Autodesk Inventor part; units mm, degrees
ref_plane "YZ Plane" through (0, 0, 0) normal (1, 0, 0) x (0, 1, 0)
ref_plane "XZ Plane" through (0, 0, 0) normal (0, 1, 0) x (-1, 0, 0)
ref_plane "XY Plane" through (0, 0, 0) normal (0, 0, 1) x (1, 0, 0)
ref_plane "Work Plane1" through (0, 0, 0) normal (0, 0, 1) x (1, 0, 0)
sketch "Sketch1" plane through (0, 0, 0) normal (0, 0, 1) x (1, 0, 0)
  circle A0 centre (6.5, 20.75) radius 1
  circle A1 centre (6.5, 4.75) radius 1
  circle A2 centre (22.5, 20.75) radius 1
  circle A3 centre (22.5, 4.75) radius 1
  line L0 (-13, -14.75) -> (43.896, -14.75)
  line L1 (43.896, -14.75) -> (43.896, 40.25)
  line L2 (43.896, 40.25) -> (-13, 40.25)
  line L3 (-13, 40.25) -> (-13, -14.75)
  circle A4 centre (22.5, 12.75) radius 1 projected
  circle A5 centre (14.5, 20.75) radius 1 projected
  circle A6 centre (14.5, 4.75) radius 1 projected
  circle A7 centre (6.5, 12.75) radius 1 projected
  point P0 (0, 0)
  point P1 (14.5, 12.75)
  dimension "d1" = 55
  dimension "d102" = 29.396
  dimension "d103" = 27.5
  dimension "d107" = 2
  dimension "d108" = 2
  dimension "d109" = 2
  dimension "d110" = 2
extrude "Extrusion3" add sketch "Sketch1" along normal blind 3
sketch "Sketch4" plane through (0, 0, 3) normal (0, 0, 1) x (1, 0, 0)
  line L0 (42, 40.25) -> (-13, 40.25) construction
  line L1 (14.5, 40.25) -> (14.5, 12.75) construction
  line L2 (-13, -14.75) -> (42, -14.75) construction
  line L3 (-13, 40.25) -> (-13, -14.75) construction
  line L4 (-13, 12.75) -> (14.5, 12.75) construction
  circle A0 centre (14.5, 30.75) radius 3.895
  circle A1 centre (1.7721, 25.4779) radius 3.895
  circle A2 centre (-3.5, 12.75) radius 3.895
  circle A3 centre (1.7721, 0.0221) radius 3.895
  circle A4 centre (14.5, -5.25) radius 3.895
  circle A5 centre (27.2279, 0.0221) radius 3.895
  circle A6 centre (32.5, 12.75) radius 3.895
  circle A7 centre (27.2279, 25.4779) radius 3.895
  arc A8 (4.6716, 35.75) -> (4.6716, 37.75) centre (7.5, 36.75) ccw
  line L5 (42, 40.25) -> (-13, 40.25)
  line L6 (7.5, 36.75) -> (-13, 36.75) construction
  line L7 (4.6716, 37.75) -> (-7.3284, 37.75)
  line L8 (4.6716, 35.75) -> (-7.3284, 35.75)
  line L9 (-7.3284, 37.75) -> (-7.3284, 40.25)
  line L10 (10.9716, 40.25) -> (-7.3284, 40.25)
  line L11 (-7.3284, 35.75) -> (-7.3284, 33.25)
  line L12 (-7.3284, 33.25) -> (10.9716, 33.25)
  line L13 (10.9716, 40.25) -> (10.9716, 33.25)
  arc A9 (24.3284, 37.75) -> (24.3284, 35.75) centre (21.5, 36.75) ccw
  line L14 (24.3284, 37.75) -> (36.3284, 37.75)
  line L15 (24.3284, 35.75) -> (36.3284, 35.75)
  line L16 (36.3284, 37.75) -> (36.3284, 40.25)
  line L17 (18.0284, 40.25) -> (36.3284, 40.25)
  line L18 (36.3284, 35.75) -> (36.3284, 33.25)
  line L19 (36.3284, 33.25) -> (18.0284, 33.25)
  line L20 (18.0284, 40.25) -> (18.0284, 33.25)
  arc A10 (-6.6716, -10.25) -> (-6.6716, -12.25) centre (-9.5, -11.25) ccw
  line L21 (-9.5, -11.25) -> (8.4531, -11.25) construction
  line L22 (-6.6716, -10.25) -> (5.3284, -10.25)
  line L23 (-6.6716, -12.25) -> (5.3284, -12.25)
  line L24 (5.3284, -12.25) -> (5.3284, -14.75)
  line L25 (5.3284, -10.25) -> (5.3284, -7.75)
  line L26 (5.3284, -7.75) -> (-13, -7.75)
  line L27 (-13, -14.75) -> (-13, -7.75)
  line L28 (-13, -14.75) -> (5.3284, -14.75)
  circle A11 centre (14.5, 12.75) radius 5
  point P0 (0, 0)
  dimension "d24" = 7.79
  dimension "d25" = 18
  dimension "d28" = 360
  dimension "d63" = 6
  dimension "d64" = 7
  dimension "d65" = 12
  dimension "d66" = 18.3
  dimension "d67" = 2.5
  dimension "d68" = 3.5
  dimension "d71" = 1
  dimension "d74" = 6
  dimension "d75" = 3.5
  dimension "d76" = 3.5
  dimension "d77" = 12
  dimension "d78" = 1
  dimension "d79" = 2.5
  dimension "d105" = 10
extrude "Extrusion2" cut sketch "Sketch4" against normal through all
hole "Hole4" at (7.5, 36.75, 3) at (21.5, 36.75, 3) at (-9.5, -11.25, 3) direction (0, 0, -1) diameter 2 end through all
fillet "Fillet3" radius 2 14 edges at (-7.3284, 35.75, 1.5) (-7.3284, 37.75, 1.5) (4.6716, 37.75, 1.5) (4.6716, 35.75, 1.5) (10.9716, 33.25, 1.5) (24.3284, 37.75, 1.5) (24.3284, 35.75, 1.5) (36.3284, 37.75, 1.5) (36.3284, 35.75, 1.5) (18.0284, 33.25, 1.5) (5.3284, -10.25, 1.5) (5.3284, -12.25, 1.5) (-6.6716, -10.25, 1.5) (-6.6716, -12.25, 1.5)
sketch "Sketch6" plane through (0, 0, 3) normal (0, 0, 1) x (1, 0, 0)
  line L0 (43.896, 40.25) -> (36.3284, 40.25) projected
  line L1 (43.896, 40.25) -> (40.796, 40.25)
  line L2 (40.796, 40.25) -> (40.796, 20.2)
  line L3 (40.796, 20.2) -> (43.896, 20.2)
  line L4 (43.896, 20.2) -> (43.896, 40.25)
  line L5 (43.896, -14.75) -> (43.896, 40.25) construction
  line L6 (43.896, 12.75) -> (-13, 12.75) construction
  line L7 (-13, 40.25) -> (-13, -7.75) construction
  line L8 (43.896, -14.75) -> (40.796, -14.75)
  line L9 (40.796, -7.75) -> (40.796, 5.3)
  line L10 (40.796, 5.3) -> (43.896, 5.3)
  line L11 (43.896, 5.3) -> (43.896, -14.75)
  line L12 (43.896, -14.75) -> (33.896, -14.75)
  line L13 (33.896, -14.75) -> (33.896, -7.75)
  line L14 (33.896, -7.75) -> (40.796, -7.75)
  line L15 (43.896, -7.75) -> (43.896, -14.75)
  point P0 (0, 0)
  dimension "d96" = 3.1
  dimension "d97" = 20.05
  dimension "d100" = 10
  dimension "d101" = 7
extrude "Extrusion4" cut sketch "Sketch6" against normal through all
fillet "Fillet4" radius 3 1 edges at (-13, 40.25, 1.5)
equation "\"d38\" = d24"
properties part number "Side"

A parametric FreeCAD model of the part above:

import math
import FreeCAD as App
import Part
import Sketcher


def edges_at(feature, points):
    """Names of the edges that pass closest to the given points."""
    edges = feature.Shape.Edges
    near = lambda p: min(range(len(edges)), key=lambda i: edges[i].distToShape(Part.Vertex(*p))[0])
    return sorted({f"Edge{near(p) + 1}" for p in points})


def add_polygon(sketch, points):
    """Adds a closed chain of lines whose ends are joined by coincident constraints."""
    first, n = sketch.GeometryCount, len(points)
    for a, b in zip(points, points[1:] + points[:1]):
        sketch.addGeometry(Part.LineSegment(App.Vector(*a, 0), App.Vector(*b, 0)), False)
    for i in range(n):
        sketch.addConstraint(Sketcher.Constraint("Coincident", first + i, 2, first + (i + 1) % n, 1))

doc = App.newDocument("Part")
body = doc.addObject("PartDesign::Body", "Body")

sketch1 = doc.addObject("Sketcher::SketchObject", "Sketch")
body.addObject(sketch1)
sketch1.AttachmentSupport = (doc.XY_Plane, [""])
sketch1.MapMode = "FlatFace"
add_polygon(sketch1, [(-13, 40.25), (-13, -14.75), (43.896, -14.75), (43.896, 40.25)])
sketch1.addGeometry(Part.Circle(App.Vector(6.5, 4.75, 0), App.Vector(0, 0, 1), 1), False)
sketch1.addGeometry(Part.Circle(App.Vector(14.5, 4.75, 0), App.Vector(0, 0, 1), 1), False)
sketch1.addGeometry(Part.Circle(App.Vector(22.5, 4.75, 0), App.Vector(0, 0, 1), 1), False)
sketch1.addGeometry(Part.Circle(App.Vector(6.5, 12.75, 0), App.Vector(0, 0, 1), 1), False)
sketch1.addGeometry(Part.Circle(App.Vector(6.5, 20.75, 0), App.Vector(0, 0, 1), 1), False)
sketch1.addGeometry(Part.Circle(App.Vector(14.5, 20.75, 0), App.Vector(0, 0, 1), 1), False)
sketch1.addGeometry(Part.Circle(App.Vector(22.5, 12.75, 0), App.Vector(0, 0, 1), 1), False)
sketch1.addGeometry(Part.Circle(App.Vector(22.5, 20.75, 0), App.Vector(0, 0, 1), 1), False)
sketch1.addConstraint(Sketcher.Constraint("Vertical", 0))
sketch1.addConstraint(Sketcher.Constraint("Horizontal", 1))
sketch1.addConstraint(Sketcher.Constraint("Vertical", 2))
sketch1.addConstraint(Sketcher.Constraint("Horizontal", 3))
sketch1.addConstraint(Sketcher.Constraint("Equal", 4, 5))
sketch1.addConstraint(Sketcher.Constraint("Equal", 5, 6))
sketch1.addConstraint(Sketcher.Constraint("Equal", 6, 7))
sketch1.addConstraint(Sketcher.Constraint("Equal", 7, 8))
sketch1.addConstraint(Sketcher.Constraint("Equal", 8, 9))
sketch1.addConstraint(Sketcher.Constraint("Equal", 9, 10))
sketch1.addConstraint(Sketcher.Constraint("Equal", 10, 11))
sketch1.addConstraint(Sketcher.Constraint("Horizontal", 4, 3, 5, 3))
sketch1.addConstraint(Sketcher.Constraint("Horizontal", 5, 3, 6, 3))
sketch1.addConstraint(Sketcher.Constraint("Horizontal", 8, 3, 9, 3))
sketch1.addConstraint(Sketcher.Constraint("Horizontal", 7, 3, 10, 3))
sketch1.addConstraint(Sketcher.Constraint("Horizontal", 9, 3, 11, 3))
sketch1.addConstraint(Sketcher.Constraint("Vertical", 4, 3, 7, 3))
sketch1.addConstraint(Sketcher.Constraint("Vertical", 7, 3, 8, 3))
sketch1.addConstraint(Sketcher.Constraint("Vertical", 5, 3, 9, 3))
sketch1.addConstraint(Sketcher.Constraint("Vertical", 6, 3, 10, 3))
sketch1.addConstraint(Sketcher.Constraint("Vertical", 10, 3, 11, 3))
sketch1.addConstraint(Sketcher.Constraint("Diameter", 4, 2.0))
sketch1.addConstraint(Sketcher.Constraint("DistanceY", 0, 2, 0, 1, 55.0))
sketch1.addConstraint(Sketcher.Constraint("DistanceX", 0, 2, 5, 3, 27.5))
sketch1.addConstraint(Sketcher.Constraint("DistanceY", 0, 2, 7, 3, 27.5))
sketch1.addConstraint(Sketcher.Constraint("DistanceX", 0, 2, -1, 1, 13.0))
sketch1.addConstraint(Sketcher.Constraint("DistanceX", 4, 3, 5, 3, 8.0))
sketch1.addConstraint(Sketcher.Constraint("DistanceX", 5, 3, 6, 3, 8.0))
sketch1.addConstraint(Sketcher.Constraint("DistanceY", 4, 3, 7, 3, 8.0))
sketch1.addConstraint(Sketcher.Constraint("DistanceY", 7, 3, 8, 3, 8.0))
sketch1.addConstraint(Sketcher.Constraint("DistanceX", 5, 3, 1, 2, 29.396))
sketch1.addConstraint(Sketcher.Constraint("DistanceY", -1, 1, 4, 3, 4.75))
pad1 = doc.addObject("PartDesign::Pad", "Pad")
body.addObject(pad1)
pad1.Profile = sketch1
pad1.Length = 3

sketch2 = doc.addObject("Sketcher::SketchObject", "Sketch001")
body.addObject(sketch2)
sketch2.AttachmentSupport = (doc.XY_Plane, [""])
sketch2.MapMode = "FlatFace"
sketch2.AttachmentOffset = App.Placement(App.Vector(0, 0, 3), App.Rotation())
sketch2.addGeometry(Part.Circle(App.Vector(14.5, 30.75, 0), App.Vector(0, 0, 1), 3.895), False)
sketch2.addGeometry(Part.Circle(App.Vector(1.7721, 25.4779, 0), App.Vector(0, 0, 1), 3.895), False)
sketch2.addGeometry(Part.Circle(App.Vector(-3.5, 12.75, 0), App.Vector(0, 0, 1), 3.895), False)
sketch2.addGeometry(Part.Circle(App.Vector(1.7721, 0.0221, 0), App.Vector(0, 0, 1), 3.895), False)
sketch2.addGeometry(Part.Circle(App.Vector(14.5, -5.25, 0), App.Vector(0, 0, 1), 3.895), False)
sketch2.addGeometry(Part.Circle(App.Vector(27.2279, 0.0221, 0), App.Vector(0, 0, 1), 3.895), False)
sketch2.addGeometry(Part.Circle(App.Vector(32.5, 12.75, 0), App.Vector(0, 0, 1), 3.895), False)
sketch2.addGeometry(Part.Circle(App.Vector(27.2279, 25.4779, 0), App.Vector(0, 0, 1), 3.895), False)
sketch2.addGeometry(Part.LineSegment(App.Vector(36.3284, 40.25, 0), App.Vector(18.0284, 40.25, 0)), False)
sketch2.addGeometry(Part.LineSegment(App.Vector(18.0284, 40.25, 0), App.Vector(18.0284, 33.25, 0)), False)
sketch2.addGeometry(Part.LineSegment(App.Vector(18.0284, 33.25, 0), App.Vector(36.3284, 33.25, 0)), False)
sketch2.addGeometry(Part.LineSegment(App.Vector(36.3284, 33.25, 0), App.Vector(36.3284, 35.75, 0)), False)
sketch2.addGeometry(Part.LineSegment(App.Vector(36.3284, 35.75, 0), App.Vector(24.3284, 35.75, 0)), False)
sketch2.addGeometry(Part.ArcOfCircle(Part.Circle(App.Vector(21.5, 36.75, 0), App.Vector(0, 0, 1), 2.999974), math.radians(19.471393), math.radians(340.528607)), False)
sketch2.addGeometry(Part.LineSegment(App.Vector(24.3284, 37.75, 0), App.Vector(36.3284, 37.75, 0)), False)
sketch2.addGeometry(Part.LineSegment(App.Vector(36.3284, 37.75, 0), App.Vector(36.3284, 40.25, 0)), False)
sketch2.addGeometry(Part.ArcOfCircle(Part.Circle(App.Vector(7.5, 36.75, 0), App.Vector(0, 0, 1), 2.999974), math.radians(-160.528607), math.radians(160.528607)), False)
sketch2.addGeometry(Part.LineSegment(App.Vector(4.6716, 35.75, 0), App.Vector(-7.3284, 35.75, 0)), False)
sketch2.addGeometry(Part.LineSegment(App.Vector(-7.3284, 35.75, 0), App.Vector(-7.3284, 33.25, 0)), False)
sketch2.addGeometry(Part.LineSegment(App.Vector(-7.3284, 33.25, 0), App.Vector(10.9716, 33.25, 0)), False)
sketch2.addGeometry(Part.LineSegment(App.Vector(10.9716, 33.25, 0), App.Vector(10.9716, 40.25, 0)), False)
sketch2.addGeometry(Part.LineSegment(App.Vector(10.9716, 40.25, 0), App.Vector(-7.3284, 40.25, 0)), False)
sketch2.addGeometry(Part.LineSegment(App.Vector(-7.3284, 40.25, 0), App.Vector(-7.3284, 37.75, 0)), False)
sketch2.addGeometry(Part.LineSegment(App.Vector(-7.3284, 37.75, 0), App.Vector(4.6716, 37.75, 0)), False)
sketch2.addGeometry(Part.ArcOfCircle(Part.Circle(App.Vector(-9.5, -11.25, 0), App.Vector(0, 0, 1), 2.999974), math.radians(19.471393), math.radians(340.528607)), False)
sketch2.addGeometry(Part.LineSegment(App.Vector(-6.6716, -10.25, 0), App.Vector(5.3284, -10.25, 0)), False)
sketch2.addGeometry(Part.LineSegment(App.Vector(5.3284, -10.25, 0), App.Vector(5.3284, -7.75, 0)), False)
sketch2.addGeometry(Part.LineSegment(App.Vector(5.3284, -7.75, 0), App.Vector(-13, -7.75, 0)), False)
sketch2.addGeometry(Part.LineSegment(App.Vector(-13, -7.75, 0), App.Vector(-13, -14.75, 0)), False)
sketch2.addGeometry(Part.LineSegment(App.Vector(-13, -14.75, 0), App.Vector(5.3284, -14.75, 0)), False)
sketch2.addGeometry(Part.LineSegment(App.Vector(5.3284, -14.75, 0), App.Vector(5.3284, -12.25, 0)), False)
sketch2.addGeometry(Part.LineSegment(App.Vector(5.3284, -12.25, 0), App.Vector(-6.6716, -12.25, 0)), False)
sketch2.addGeometry(Part.Circle(App.Vector(14.5, 12.75, 0), App.Vector(0, 0, 1), 5), False)
sketch2.addConstraint(Sketcher.Constraint("Coincident", 8, 2, 9, 1))
sketch2.addConstraint(Sketcher.Constraint("Coincident", 9, 2, 10, 1))
sketch2.addConstraint(Sketcher.Constraint("Coincident", 10, 2, 11, 1))
sketch2.addConstraint(Sketcher.Constraint("Coincident", 11, 2, 12, 1))
sketch2.addConstraint(Sketcher.Constraint("Coincident", 12, 2, 13, 2))
sketch2.addConstraint(Sketcher.Constraint("Coincident", 13, 1, 14, 1))
sketch2.addConstraint(Sketcher.Constraint("Coincident", 14, 2, 15, 1))
sketch2.addConstraint(Sketcher.Constraint("Coincident", 15, 2, 8, 1))
sketch2.addConstraint(Sketcher.Constraint("Coincident", 16, 1, 17, 1))
sketch2.addConstraint(Sketcher.Constraint("Coincident", 17, 2, 18, 1))
sketch2.addConstraint(Sketcher.Constraint("Coincident", 18, 2, 19, 1))
sketch2.addConstraint(Sketcher.Constraint("Coincident", 19, 2, 20, 1))
sketch2.addConstraint(Sketcher.Constraint("Coincident", 20, 2, 21, 1))
sketch2.addConstraint(Sketcher.Constraint("Coincident", 21, 2, 22, 1))
sketch2.addConstraint(Sketcher.Constraint("Coincident", 22, 2, 23, 1))
sketch2.addConstraint(Sketcher.Constraint("Coincident", 23, 2, 16, 2))
sketch2.addConstraint(Sketcher.Constraint("Coincident", 24, 1, 25, 1))
sketch2.addConstraint(Sketcher.Constraint("Coincident", 25, 2, 26, 1))
sketch2.addConstraint(Sketcher.Constraint("Coincident", 26, 2, 27, 1))
sketch2.addConstraint(Sketcher.Constraint("Coincident", 27, 2, 28, 1))
sketch2.addConstraint(Sketcher.Constraint("Coincident", 28, 2, 29, 1))
sketch2.addConstraint(Sketcher.Constraint("Coincident", 29, 2, 30, 1))
sketch2.addConstraint(Sketcher.Constraint("Coincident", 30, 2, 31, 1))
sketch2.addConstraint(Sketcher.Constraint("Coincident", 31, 2, 24, 2))
sketch2.addConstraint(Sketcher.Constraint("Horizontal", 8))
sketch2.addConstraint(Sketcher.Constraint("Vertical", 9))
sketch2.addConstraint(Sketcher.Constraint("Horizontal", 10))
sketch2.addConstraint(Sketcher.Constraint("Vertical", 11))
sketch2.addConstraint(Sketcher.Constraint("Horizontal", 12))
sketch2.addConstraint(Sketcher.Constraint("Horizontal", 14))
sketch2.addConstraint(Sketcher.Constraint("Vertical", 15))
sketch2.addConstraint(Sketcher.Constraint("Horizontal", 17))
sketch2.addConstraint(Sketcher.Constraint("Vertical", 18))
sketch2.addConstraint(Sketcher.Constraint("Horizontal", 19))
sketch2.addConstraint(Sketcher.Constraint("Vertical", 20))
sketch2.addConstraint(Sketcher.Constraint("Horizontal", 21))
sketch2.addConstraint(Sketcher.Constraint("Vertical", 22))
sketch2.addConstraint(Sketcher.Constraint("Horizontal", 23))
sketch2.addConstraint(Sketcher.Constraint("Horizontal", 25))
sketch2.addConstraint(Sketcher.Constraint("Vertical", 26))
sketch2.addConstraint(Sketcher.Constraint("Horizontal", 27))
sketch2.addConstraint(Sketcher.Constraint("Vertical", 28))
sketch2.addConstraint(Sketcher.Constraint("Horizontal", 29))
sketch2.addConstraint(Sketcher.Constraint("Vertical", 30))
sketch2.addConstraint(Sketcher.Constraint("Horizontal", 31))
sketch2.addConstraint(Sketcher.Constraint("Equal", 0, 1))
sketch2.addConstraint(Sketcher.Constraint("Equal", 1, 2))
sketch2.addConstraint(Sketcher.Constraint("Equal", 2, 3))
sketch2.addConstraint(Sketcher.Constraint("Equal", 3, 4))
sketch2.addConstraint(Sketcher.Constraint("Equal", 4, 5))
sketch2.addConstraint(Sketcher.Constraint("Equal", 5, 6))
sketch2.addConstraint(Sketcher.Constraint("Equal", 6, 7))
sketch2.addConstraint(Sketcher.Constraint("Equal", 13, 16))
sketch2.addConstraint(Sketcher.Constraint("Equal", 16, 24))
sketch2.addConstraint(Sketcher.Constraint("Horizontal", 3, 3, 5, 3))
sketch2.addConstraint(Sketcher.Constraint("Horizontal", 2, 3, 6, 3))
sketch2.addConstraint(Sketcher.Constraint("Horizontal", 1, 3, 7, 3))
sketch2.addConstraint(Sketcher.Constraint("Horizontal", 13, 3, 16, 3))
sketch2.addConstraint(Sketcher.Constraint("Horizontal", 6, 3, 32, 3))
sketch2.addConstraint(Sketcher.Constraint("Horizontal", 12, 2, 16, 1))
sketch2.addConstraint(Sketcher.Constraint("Horizontal", 10, 2, 18, 2))
sketch2.addConstraint(Sketcher.Constraint("Horizontal", 15, 2, 20, 2))
sketch2.addConstraint(Sketcher.Constraint("Horizontal", 14, 2, 22, 2))
sketch2.addConstraint(Sketcher.Constraint("Vertical", 1, 3, 3, 3))
sketch2.addConstraint(Sketcher.Constraint("Vertical", 0, 3, 4, 3))
sketch2.addConstraint(Sketcher.Constraint("Vertical", 5, 3, 7, 3))
sketch2.addConstraint(Sketcher.Constraint("Vertical", 4, 3, 32, 3))
sketch2.addConstraint(Sketcher.Constraint("Vertical", 12, 2, 13, 1))
sketch2.addConstraint(Sketcher.Constraint("Vertical", 11, 2, 14, 2))
sketch2.addConstraint(Sketcher.Constraint("Vertical", 18, 2, 21, 2))
sketch2.addConstraint(Sketcher.Constraint("Vertical", 26, 2, 29, 2))
sketch2.addConstraint(Sketcher.Constraint("Vertical", 24, 1, 31, 2))
sketch2.addConstraint(Sketcher.Constraint("Equal", 14, 17))
sketch2.addConstraint(Sketcher.Constraint("Equal", 10, 19))
sketch2.addConstraint(Sketcher.Constraint("Equal", 23, 25))
sketch2.addConstraint(Sketcher.Constraint("Equal", 11, 15))
sketch2.addConstraint(Sketcher.Constraint("Equal", 22, 26))
sketch2.addConstraint(Sketcher.Constraint("Equal", 20, 28))
sketch2.addConstraint(Sketcher.Constraint("Equal", 26, 30))
sketch2.addConstraint(Sketcher.Constraint("Diameter", 32, 10.0))
sketch2.addConstraint(Sketcher.Constraint("Radius", 13, 3.0))
sketch2.addConstraint(Sketcher.Constraint("Diameter", 0, 7.79))
sketch2.addConstraint(Sketcher.Constraint("DistanceX", 12, 2, 12, 1, 12.0))
sketch2.addConstraint(Sketcher.Constraint("DistanceY", 9, 2, 9, 1, 7.0))
sketch2.addConstraint(Sketcher.Constraint("DistanceX", 8, 2, 8, 1, 18.3))
sketch2.addConstraint(Sketcher.Constraint("DistanceY", 11, 1, 11, 2, 2.5))
sketch2.addConstraint(Sketcher.Constraint("DistanceX", 2, 3, 0, 3, 18.0))
sketch2.addConstraint(Sketcher.Constraint("DistanceY", 2, 3, 0, 3, 18.0))
sketch2.addConstraint(Sketcher.Constraint("DistanceY", 4, 3, 2, 3, 18.0))
sketch2.addConstraint(Sketcher.Constraint("DistanceX", 0, 3, 6, 3, 18.0))
sketch2.addConstraint(Sketcher.Constraint("DistanceX", 0, 3, 13, 3, 7.0))
sketch2.addConstraint(Sketcher.Constraint("DistanceY", 0, 3, 13, 3, 6.0))
sketch2.addConstraint(Sketcher.Constraint("DistanceX", 16, 3, 0, 3, 7.0))
sketch2.addConstraint(Sketcher.Constraint("DistanceX", 24, 3, 2, 3, 6.0))
sketch2.addConstraint(Sketcher.Constraint("DistanceY", 24, 3, 4, 3, 6.0))
sketch2.addConstraint(Sketcher.Constraint("DistanceX", 2, 3, -1, 1, 3.5))
sketch2.addConstraint(Sketcher.Constraint("DistanceX", 27, 2, 24, 3, 3.5))
sketch2.addConstraint(Sketcher.Constraint("DistanceY", -1, 1, 0, 3, 30.75))
sketch2.addConstraint(Sketcher.Constraint("DistanceX", -1, 1, 1, 3, 1.772))
sketch2.addConstraint(Sketcher.Constraint("DistanceY", -1, 1, 1, 3, 25.478))
sketch2.addConstraint(Sketcher.Constraint("DistanceY", -1, 1, 3, 3, 0.022))
sketch2.addConstraint(Sketcher.Constraint("DistanceX", -1, 1, 5, 3, 27.228))
pocket1 = doc.addObject("PartDesign::Pocket", "Pocket")
body.addObject(pocket1)
pocket1.Profile = sketch2
pocket1.Type = "ThroughAll"

sketch3 = doc.addObject("Sketcher::SketchObject", "Sketch002")
body.addObject(sketch3)
sketch3.AttachmentSupport = (doc.XY_Plane, [""])
sketch3.MapMode = "FlatFace"
sketch3.AttachmentOffset = App.Placement(App.Vector(0, 0, 3), App.Rotation())
sketch3.addGeometry(Part.Circle(App.Vector(7.5, 36.75, 0), App.Vector(0, 0, 1), 1), False)
sketch3.addGeometry(Part.Circle(App.Vector(21.5, 36.75, 0), App.Vector(0, 0, 1), 1), False)
sketch3.addGeometry(Part.Circle(App.Vector(-9.5, -11.25, 0), App.Vector(0, 0, 1), 1), False)
sketch3.addConstraint(Sketcher.Constraint("Equal", 0, 1))
sketch3.addConstraint(Sketcher.Constraint("Equal", 1, 2))
sketch3.addConstraint(Sketcher.Constraint("Horizontal", 0, 3, 1, 3))
sketch3.addConstraint(Sketcher.Constraint("Diameter", 0, 2.0))
sketch3.addConstraint(Sketcher.Constraint("DistanceX", 0, 3, 1, 3, 14.0))
sketch3.addConstraint(Sketcher.Constraint("DistanceX", 2, 3, 0, 3, 17.0))
sketch3.addConstraint(Sketcher.Constraint("DistanceY", 2, 3, 0, 3, 48.0))
sketch3.addConstraint(Sketcher.Constraint("DistanceX", -1, 1, 0, 3, 7.5))
sketch3.addConstraint(Sketcher.Constraint("DistanceY", -1, 1, 0, 3, 36.75))
doc.recompute()
hole = doc.addObject("PartDesign::Hole", "Hole")
body.addObject(hole)
hole.Profile = sketch3
hole.ThreadType = "None"
hole.Diameter = 2
hole.DepthType = "ThroughAll"
doc.recompute()

fillet = doc.addObject("PartDesign::Fillet", "Fillet")
body.addObject(fillet)
fillet.Base = (hole, edges_at(hole, [
    (-7.328, 35.75, 1.5),
    (-7.328, 37.75, 1.5),
    (4.672, 37.75, 1.5),
    (4.672, 35.75, 1.5),
    (10.972, 33.25, 1.5),
    (24.328, 37.75, 1.5),
    (24.328, 35.75, 1.5),
    (36.328, 37.75, 1.5),
    (36.328, 35.75, 1.5),
    (18.028, 33.25, 1.5),
    (5.328, -10.25, 1.5),
    (5.328, -12.25, 1.5),
    (-6.672, -10.25, 1.5),
    (-6.672, -12.25, 1.5),
]))
fillet.Radius = 2

sketch4 = doc.addObject("Sketcher::SketchObject", "Sketch003")
body.addObject(sketch4)
sketch4.AttachmentSupport = (doc.XY_Plane, [""])
sketch4.MapMode = "FlatFace"
sketch4.AttachmentOffset = App.Placement(App.Vector(0, 0, 3), App.Rotation())
add_polygon(sketch4, [(43.896, 20.2), (43.896, 40.25), (40.796, 40.25), (40.796, 20.2)])
add_polygon(sketch4, [(33.896, -14.75), (43.896, -14.75), (43.896, 5.3), (40.796, 5.3), (40.796, -7.75), (33.896, -7.75)])
sketch4.addConstraint(Sketcher.Constraint("Vertical", 0))
sketch4.addConstraint(Sketcher.Constraint("Horizontal", 1))
sketch4.addConstraint(Sketcher.Constraint("Vertical", 2))
sketch4.addConstraint(Sketcher.Constraint("Horizontal", 3))
sketch4.addConstraint(Sketcher.Constraint("Horizontal", 4))
sketch4.addConstraint(Sketcher.Constraint("Vertical", 5))
sketch4.addConstraint(Sketcher.Constraint("Horizontal", 6))
sketch4.addConstraint(Sketcher.Constraint("Vertical", 7))
sketch4.addConstraint(Sketcher.Constraint("Horizontal", 8))
sketch4.addConstraint(Sketcher.Constraint("Vertical", 9))
sketch4.addConstraint(Sketcher.Constraint("Vertical", 3, 2, 4, 2))
sketch4.addConstraint(Sketcher.Constraint("Vertical", 2, 2, 6, 2))
sketch4.addConstraint(Sketcher.Constraint("Equal", 2, 5))
sketch4.addConstraint(Sketcher.Constraint("DistanceX", 4, 1, 4, 2, 10.0))
sketch4.addConstraint(Sketcher.Constraint("DistanceY", 9, 2, 9, 1, 7.0))
sketch4.addConstraint(Sketcher.Constraint("DistanceX", 1, 2, 1, 1, 3.1))
sketch4.addConstraint(Sketcher.Constraint("DistanceY", 0, 1, 0, 2, 20.05))
sketch4.addConstraint(Sketcher.Constraint("DistanceY", 4, 2, 0, 2, 55.0))
sketch4.addConstraint(Sketcher.Constraint("DistanceY", -1, 1, 2, 2, 20.2))
sketch4.addConstraint(Sketcher.Constraint("DistanceX", -1, 1, 0, 2, 43.896))
pocket2 = doc.addObject("PartDesign::Pocket", "Pocket001")
body.addObject(pocket2)
pocket2.Profile = sketch4
pocket2.Type = "ThroughAll"
doc.recompute()

fillet2 = doc.addObject("PartDesign::Fillet", "Fillet001")
body.addObject(fillet2)
fillet2.Base = (pocket2, edges_at(pocket2, [(-13, 40.25, 1.5)]))
fillet2.Radius = 3

doc.recompute()
